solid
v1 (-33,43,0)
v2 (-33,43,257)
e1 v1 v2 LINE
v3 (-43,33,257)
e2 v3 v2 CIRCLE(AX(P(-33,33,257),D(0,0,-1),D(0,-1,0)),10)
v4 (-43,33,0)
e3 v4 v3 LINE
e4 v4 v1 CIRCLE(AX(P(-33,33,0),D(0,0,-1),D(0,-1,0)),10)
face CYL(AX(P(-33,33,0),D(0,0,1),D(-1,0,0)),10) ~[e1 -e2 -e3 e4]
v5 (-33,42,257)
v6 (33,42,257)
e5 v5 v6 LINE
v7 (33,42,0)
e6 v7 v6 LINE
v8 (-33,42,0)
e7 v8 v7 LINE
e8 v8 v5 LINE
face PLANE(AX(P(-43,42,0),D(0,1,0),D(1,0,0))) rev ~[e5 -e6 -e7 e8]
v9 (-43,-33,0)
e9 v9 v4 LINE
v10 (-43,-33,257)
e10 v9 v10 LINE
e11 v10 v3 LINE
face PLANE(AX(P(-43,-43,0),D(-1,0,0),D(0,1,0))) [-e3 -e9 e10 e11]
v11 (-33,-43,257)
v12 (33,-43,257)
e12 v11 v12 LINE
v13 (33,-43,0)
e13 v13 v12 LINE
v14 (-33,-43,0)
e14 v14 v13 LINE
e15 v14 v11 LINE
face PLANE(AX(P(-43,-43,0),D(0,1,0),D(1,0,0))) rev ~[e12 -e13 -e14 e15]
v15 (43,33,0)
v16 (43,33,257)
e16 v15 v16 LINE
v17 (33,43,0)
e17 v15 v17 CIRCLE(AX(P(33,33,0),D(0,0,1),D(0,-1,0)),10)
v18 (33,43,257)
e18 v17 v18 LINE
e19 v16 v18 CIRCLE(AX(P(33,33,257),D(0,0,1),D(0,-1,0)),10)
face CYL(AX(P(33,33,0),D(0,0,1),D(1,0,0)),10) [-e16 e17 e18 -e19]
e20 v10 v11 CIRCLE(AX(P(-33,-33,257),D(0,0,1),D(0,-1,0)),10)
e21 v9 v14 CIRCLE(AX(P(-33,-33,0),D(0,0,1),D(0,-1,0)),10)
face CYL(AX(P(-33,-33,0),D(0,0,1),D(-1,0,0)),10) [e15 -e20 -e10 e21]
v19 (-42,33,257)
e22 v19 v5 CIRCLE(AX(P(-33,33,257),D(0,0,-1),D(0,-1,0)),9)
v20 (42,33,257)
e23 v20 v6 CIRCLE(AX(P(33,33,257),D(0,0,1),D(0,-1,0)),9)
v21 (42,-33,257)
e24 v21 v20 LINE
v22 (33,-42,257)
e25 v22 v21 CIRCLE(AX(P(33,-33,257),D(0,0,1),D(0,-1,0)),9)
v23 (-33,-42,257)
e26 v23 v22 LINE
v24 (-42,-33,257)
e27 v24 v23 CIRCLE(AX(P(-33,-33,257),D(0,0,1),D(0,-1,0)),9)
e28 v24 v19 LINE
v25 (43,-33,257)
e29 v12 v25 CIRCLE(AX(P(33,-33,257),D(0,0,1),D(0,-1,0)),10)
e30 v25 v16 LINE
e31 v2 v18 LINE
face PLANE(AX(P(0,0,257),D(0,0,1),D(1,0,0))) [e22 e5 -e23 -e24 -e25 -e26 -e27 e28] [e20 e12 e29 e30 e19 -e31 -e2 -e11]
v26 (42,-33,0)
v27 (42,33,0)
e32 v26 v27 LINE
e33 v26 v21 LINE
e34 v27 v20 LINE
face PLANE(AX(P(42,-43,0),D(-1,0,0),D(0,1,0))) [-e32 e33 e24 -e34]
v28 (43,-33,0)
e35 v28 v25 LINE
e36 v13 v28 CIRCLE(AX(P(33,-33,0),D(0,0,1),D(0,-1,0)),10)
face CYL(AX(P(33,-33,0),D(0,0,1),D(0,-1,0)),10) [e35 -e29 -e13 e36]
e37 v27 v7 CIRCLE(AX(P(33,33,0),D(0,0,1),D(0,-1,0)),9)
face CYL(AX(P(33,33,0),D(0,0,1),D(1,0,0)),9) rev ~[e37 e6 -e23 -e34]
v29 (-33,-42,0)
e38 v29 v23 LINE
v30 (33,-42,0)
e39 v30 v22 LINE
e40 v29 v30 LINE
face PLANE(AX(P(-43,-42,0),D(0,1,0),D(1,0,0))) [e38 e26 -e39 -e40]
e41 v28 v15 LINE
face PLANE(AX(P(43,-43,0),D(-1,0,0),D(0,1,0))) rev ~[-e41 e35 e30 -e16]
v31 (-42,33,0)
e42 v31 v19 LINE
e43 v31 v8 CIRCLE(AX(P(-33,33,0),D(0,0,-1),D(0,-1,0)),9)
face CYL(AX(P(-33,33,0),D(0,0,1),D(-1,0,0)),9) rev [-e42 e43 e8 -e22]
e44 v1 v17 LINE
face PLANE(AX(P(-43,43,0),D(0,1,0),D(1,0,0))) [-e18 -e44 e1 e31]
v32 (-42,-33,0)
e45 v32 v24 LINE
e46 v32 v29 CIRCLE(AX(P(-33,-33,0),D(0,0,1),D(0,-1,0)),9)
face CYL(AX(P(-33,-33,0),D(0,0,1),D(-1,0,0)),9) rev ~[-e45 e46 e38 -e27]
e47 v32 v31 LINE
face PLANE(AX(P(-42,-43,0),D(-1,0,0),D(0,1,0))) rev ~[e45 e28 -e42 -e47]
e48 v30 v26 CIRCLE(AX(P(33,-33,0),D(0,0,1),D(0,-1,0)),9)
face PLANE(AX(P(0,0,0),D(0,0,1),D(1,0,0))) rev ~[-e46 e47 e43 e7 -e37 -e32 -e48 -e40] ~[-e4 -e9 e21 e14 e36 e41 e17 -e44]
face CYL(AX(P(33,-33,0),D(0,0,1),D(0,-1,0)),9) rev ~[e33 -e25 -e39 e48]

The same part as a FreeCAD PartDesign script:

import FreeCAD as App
import Part
import Sketcher

V = App.Vector
Q = App.Units.Quantity


def edges_at(feature, points):
    """Names of the edges that pass closest to the given points."""
    edges = feature.Shape.Edges
    near = lambda p: min(range(len(edges)), key=lambda i: edges[i].distToShape(Part.Vertex(*p))[0])
    return sorted({f"Edge{near(p) + 1}" for p in points})


def faces_at(feature, points):
    """Names of the faces that lie closest to the given points."""
    faces = feature.Shape.Faces
    near = lambda p: min(range(len(faces)), key=lambda i: faces[i].distToShape(Part.Vertex(*p))[0])
    return sorted({f"Face{near(p) + 1}" for p in points})

doc = App.newDocument("Part")
params = doc.addObject("Spreadsheet::Sheet", "Params")
for row, (alias, value) in enumerate([
    ("sketch1_width", "86 mm"),
    ("pad1_length", "257 mm"),
    ("fillet_radius", "10 mm"),
    ("thickness_wall", "1 mm"),
], start=1):
    params.set(f"A{row}", alias)
    params.set(f"B{row}", "=" + value)
    params.setAlias(f"B{row}", alias)

body = doc.addObject("PartDesign::Body", "Body")

sketch1 = body.newObject("Sketcher::SketchObject", "Sketch")
sketch1.AttachmentSupport = (doc.getObject("XY_Plane"), [""])
sketch1.MapMode = "FlatFace"
sketch1.addGeometry([
    Part.LineSegment(V(-43, 43, 0), V(-43, -43, 0)),
    Part.LineSegment(V(-43, -43, 0), V(43, -43, 0)),
    Part.LineSegment(V(43, -43, 0), V(43, 43, 0)),
    Part.LineSegment(V(43, 43, 0), V(-43, 43, 0)),
], False)
sketch1.addConstraint([
    Sketcher.Constraint("Coincident", 0, 2, 1, 1),
    Sketcher.Constraint("Coincident", 1, 2, 2, 1),
    Sketcher.Constraint("Coincident", 2, 2, 3, 1),
    Sketcher.Constraint("Coincident", 3, 2, 0, 1),
    Sketcher.Constraint("Vertical", 0),
    Sketcher.Constraint("Horizontal", 1),
    Sketcher.Constraint("Vertical", 2),
    Sketcher.Constraint("Horizontal", 3),
    Sketcher.Constraint("Symmetric", 0, 2, 2, 2, -1, 1),
    Sketcher.Constraint("Equal", 3, 0),
    Sketcher.Constraint("DistanceX", 1, 1, 1, 2, Q("86 mm")),
])
sketch1.setExpression("Constraints[10]", "Params.sketch1_width")
pad1 = body.newObject("PartDesign::Pad", "Pad")
pad1.Profile = sketch1
pad1.setExpression("Length", "Params.pad1_length")
doc.recompute()

fillet = body.newObject("PartDesign::Fillet", "Fillet")
fillet.Base = (pad1, edges_at(pad1, [
    (43, 43, 128.5),
    (-43, -43, 128.5),
    (43, -43, 128.5),
    (-43, 43, 128.5),
]))
fillet.setExpression("Radius", "Params.fillet_radius")
doc.recompute()

thickness = body.newObject("PartDesign::Thickness", "Thickness")
thickness.Base = (fillet, faces_at(fillet, [(0, 0, 257), (0, 0, 0)]))
thickness.setExpression("Value", "Params.thickness_wall")
thickness.Reversed = True
thickness.Join = "Arc"

doc.recompute()
